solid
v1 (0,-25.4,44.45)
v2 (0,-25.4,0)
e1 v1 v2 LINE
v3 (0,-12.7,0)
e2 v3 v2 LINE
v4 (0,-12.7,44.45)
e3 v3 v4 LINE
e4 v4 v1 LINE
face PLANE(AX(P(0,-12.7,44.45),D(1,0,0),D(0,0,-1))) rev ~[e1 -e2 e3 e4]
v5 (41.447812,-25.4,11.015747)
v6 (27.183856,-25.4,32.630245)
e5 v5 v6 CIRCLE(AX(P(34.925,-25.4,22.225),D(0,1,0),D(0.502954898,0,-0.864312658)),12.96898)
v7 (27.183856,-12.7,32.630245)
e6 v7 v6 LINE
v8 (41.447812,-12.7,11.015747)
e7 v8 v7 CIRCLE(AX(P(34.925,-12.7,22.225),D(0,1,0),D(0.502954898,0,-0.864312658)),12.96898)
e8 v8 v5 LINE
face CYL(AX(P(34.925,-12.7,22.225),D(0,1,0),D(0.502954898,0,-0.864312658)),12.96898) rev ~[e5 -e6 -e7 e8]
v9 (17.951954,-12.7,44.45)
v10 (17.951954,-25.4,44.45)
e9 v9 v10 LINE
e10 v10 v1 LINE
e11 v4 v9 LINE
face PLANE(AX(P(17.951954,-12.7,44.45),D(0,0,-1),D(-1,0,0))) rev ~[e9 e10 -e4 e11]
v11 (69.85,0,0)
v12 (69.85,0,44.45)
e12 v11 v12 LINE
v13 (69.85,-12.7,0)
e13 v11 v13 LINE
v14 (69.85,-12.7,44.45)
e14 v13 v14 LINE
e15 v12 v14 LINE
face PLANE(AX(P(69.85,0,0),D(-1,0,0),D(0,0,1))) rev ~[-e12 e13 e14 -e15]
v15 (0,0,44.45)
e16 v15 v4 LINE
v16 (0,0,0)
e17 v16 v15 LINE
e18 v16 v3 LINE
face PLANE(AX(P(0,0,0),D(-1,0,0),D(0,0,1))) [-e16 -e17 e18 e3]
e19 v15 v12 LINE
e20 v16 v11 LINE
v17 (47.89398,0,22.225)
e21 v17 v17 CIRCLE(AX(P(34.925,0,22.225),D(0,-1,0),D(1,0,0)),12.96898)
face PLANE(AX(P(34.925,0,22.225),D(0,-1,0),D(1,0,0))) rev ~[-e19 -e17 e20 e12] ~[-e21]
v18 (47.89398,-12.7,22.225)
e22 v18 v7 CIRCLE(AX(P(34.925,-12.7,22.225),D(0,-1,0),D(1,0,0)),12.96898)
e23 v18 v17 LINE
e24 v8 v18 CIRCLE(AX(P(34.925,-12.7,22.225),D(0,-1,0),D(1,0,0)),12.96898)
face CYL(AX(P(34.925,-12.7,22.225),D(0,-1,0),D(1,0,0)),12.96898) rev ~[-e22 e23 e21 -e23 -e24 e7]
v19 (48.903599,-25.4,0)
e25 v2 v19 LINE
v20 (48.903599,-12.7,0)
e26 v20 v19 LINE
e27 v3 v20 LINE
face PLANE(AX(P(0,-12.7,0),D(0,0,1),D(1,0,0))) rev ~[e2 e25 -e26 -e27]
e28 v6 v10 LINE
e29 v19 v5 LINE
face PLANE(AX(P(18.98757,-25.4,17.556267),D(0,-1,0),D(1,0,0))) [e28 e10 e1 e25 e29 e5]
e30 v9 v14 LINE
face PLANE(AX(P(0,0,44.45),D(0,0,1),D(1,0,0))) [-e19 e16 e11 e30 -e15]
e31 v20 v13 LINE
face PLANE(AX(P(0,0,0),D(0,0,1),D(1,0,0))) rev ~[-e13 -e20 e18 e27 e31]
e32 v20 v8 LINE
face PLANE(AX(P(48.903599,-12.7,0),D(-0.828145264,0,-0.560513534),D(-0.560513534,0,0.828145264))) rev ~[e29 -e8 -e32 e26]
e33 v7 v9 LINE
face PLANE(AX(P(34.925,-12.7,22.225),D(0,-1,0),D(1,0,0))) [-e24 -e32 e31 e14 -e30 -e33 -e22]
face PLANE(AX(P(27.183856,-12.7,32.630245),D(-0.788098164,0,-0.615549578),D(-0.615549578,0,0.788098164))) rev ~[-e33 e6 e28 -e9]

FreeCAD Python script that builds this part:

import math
import FreeCAD as App
import Part
import Sketcher
Q = App.Units.Quantity

doc = App.newDocument("Part")
body = doc.addObject("PartDesign::Body", "Body")

sketch1 = doc.addObject("Sketcher::SketchObject", "Sketch")
body.addObject(sketch1)
sketch1.AttachmentSupport = (doc.XZ_Plane, [""])
sketch1.MapMode = "FlatFace"
sketch1.addGeometry([
    Part.LineSegment(App.Vector(0, 44, 0), App.Vector(0, 0, 0)),
    Part.LineSegment(App.Vector(0, 0, 0), App.Vector(70, 0, 0)),
    Part.LineSegment(App.Vector(70, 0, 0), App.Vector(70, 44, 0)),
    Part.LineSegment(App.Vector(70, 44, 0), App.Vector(0, 44, 0)),
], False)
sketch1.addConstraint([
    Sketcher.Constraint("Coincident", 0, 2, 1, 1),
    Sketcher.Constraint("Coincident", 1, 2, 2, 1),
    Sketcher.Constraint("Coincident", 2, 2, 3, 1),
    Sketcher.Constraint("Coincident", 3, 2, 0, 1),
    Sketcher.Constraint("Vertical", 0),
    Sketcher.Constraint("Horizontal", 1),
    Sketcher.Constraint("Vertical", 2),
    Sketcher.Constraint("Horizontal", 3),
    Sketcher.Constraint("Coincident", 0, 2, -1, 1),
    Sketcher.Constraint("DistanceX", 1, 1, 1, 2, Q("2.75 in")),
    Sketcher.Constraint("DistanceY", 0, 2, 0, 1, Q("1.75 in")),
])
pad1 = doc.addObject("PartDesign::Pad", "Pad")
body.addObject(pad1)
pad1.Profile = sketch1
pad1.Length = Q("0.5 in")

sketch2 = doc.addObject("Sketcher::SketchObject", "Sketch001")
body.addObject(sketch2)
sketch2.AttachmentSupport = (doc.XZ_Plane, [""])
sketch2.MapMode = "FlatFace"
sketch2.AttachmentOffset = App.Placement(App.Vector(0, 0, 0.5 * 25.4), App.Rotation())
sketch2.addGeometry(Part.Circle(App.Vector(35, 22, 0), App.Vector(0, 0, 1), 13), False)
sketch2.addConstraint([
    Sketcher.Constraint("Diameter", 0, 25.937959),
    Sketcher.Constraint("DistanceX", -1, 1, 0, 3, Q("1.375 in")),
    Sketcher.Constraint("DistanceY", -1, 1, 0, 3, Q("0.875 in")),
])
pocket1 = doc.addObject("PartDesign::Pocket", "Pocket")
body.addObject(pocket1)
pocket1.Profile = sketch2
pocket1.Length = Q("1 in")

sketch3 = doc.addObject("Sketcher::SketchObject", "Sketch002")
body.addObject(sketch3)
sketch3.AttachmentSupport = (doc.XZ_Plane, [""])
sketch3.MapMode = "FlatFace"
sketch3.AttachmentOffset = App.Placement(App.Vector(0, 0, 0.5 * 25.4), App.Rotation())
sketch3.addGeometry([
    Part.LineSegment(App.Vector(27, 33, 0), App.Vector(18, 44, 0)),
    Part.LineSegment(App.Vector(18, 44, 0), App.Vector(0, 44, 0)),
    Part.LineSegment(App.Vector(0, 44, 0), App.Vector(0, 0, 0)),
    Part.LineSegment(App.Vector(0, 0, 0), App.Vector(49, 0, 0)),
    Part.LineSegment(App.Vector(49, 0, 0), App.Vector(41, 11, 0)),
    Part.ArcOfCircle(Part.Circle(App.Vector(35, 22, 0), App.Vector(0, 0, 1), 13), math.radians(127), math.radians(300)),
], False)
sketch3.addConstraint([
    Sketcher.Constraint("Coincident", 0, 2, 1, 1),
    Sketcher.Constraint("Coincident", 1, 2, 2, 1),
    Sketcher.Constraint("Coincident", 2, 2, 3, 1),
    Sketcher.Constraint("Coincident", 3, 2, 4, 1),
    Sketcher.Constraint("Coincident", 4, 2, 5, 2),
    Sketcher.Constraint("Coincident", 5, 1, 0, 1),
    Sketcher.Constraint("Horizontal", 1),
    Sketcher.Constraint("Vertical", 2),
    Sketcher.Constraint("Horizontal", 3),
    Sketcher.Constraint("Coincident", 2, 2, -1, 1),
    Sketcher.Constraint("DistanceY", 2, 2, 2, 1, Q("1.75 in")),
    Sketcher.Constraint("DistanceX", -1, 1, 5, 3, Q("1.375 in")),
    Sketcher.Constraint("DistanceY", -1, 1, 5, 3, Q("0.875 in")),
    Sketcher.Constraint("Radius", 5, 12.96898),
    Sketcher.Constraint("DistanceX", 3, 1, 3, 2, 48.903599),
    Sketcher.Constraint("DistanceY", 4, 2, 5, 1, 21.614498),
    Sketcher.Constraint("Distance", 0, 14.997821),
    Sketcher.Constraint("Distance", 4, 13.301708),
])
pad2 = doc.addObject("PartDesign::Pad", "Pad001")
body.addObject(pad2)
pad2.Profile = sketch3
pad2.Length = Q("0.5 in")

doc.recompute()
